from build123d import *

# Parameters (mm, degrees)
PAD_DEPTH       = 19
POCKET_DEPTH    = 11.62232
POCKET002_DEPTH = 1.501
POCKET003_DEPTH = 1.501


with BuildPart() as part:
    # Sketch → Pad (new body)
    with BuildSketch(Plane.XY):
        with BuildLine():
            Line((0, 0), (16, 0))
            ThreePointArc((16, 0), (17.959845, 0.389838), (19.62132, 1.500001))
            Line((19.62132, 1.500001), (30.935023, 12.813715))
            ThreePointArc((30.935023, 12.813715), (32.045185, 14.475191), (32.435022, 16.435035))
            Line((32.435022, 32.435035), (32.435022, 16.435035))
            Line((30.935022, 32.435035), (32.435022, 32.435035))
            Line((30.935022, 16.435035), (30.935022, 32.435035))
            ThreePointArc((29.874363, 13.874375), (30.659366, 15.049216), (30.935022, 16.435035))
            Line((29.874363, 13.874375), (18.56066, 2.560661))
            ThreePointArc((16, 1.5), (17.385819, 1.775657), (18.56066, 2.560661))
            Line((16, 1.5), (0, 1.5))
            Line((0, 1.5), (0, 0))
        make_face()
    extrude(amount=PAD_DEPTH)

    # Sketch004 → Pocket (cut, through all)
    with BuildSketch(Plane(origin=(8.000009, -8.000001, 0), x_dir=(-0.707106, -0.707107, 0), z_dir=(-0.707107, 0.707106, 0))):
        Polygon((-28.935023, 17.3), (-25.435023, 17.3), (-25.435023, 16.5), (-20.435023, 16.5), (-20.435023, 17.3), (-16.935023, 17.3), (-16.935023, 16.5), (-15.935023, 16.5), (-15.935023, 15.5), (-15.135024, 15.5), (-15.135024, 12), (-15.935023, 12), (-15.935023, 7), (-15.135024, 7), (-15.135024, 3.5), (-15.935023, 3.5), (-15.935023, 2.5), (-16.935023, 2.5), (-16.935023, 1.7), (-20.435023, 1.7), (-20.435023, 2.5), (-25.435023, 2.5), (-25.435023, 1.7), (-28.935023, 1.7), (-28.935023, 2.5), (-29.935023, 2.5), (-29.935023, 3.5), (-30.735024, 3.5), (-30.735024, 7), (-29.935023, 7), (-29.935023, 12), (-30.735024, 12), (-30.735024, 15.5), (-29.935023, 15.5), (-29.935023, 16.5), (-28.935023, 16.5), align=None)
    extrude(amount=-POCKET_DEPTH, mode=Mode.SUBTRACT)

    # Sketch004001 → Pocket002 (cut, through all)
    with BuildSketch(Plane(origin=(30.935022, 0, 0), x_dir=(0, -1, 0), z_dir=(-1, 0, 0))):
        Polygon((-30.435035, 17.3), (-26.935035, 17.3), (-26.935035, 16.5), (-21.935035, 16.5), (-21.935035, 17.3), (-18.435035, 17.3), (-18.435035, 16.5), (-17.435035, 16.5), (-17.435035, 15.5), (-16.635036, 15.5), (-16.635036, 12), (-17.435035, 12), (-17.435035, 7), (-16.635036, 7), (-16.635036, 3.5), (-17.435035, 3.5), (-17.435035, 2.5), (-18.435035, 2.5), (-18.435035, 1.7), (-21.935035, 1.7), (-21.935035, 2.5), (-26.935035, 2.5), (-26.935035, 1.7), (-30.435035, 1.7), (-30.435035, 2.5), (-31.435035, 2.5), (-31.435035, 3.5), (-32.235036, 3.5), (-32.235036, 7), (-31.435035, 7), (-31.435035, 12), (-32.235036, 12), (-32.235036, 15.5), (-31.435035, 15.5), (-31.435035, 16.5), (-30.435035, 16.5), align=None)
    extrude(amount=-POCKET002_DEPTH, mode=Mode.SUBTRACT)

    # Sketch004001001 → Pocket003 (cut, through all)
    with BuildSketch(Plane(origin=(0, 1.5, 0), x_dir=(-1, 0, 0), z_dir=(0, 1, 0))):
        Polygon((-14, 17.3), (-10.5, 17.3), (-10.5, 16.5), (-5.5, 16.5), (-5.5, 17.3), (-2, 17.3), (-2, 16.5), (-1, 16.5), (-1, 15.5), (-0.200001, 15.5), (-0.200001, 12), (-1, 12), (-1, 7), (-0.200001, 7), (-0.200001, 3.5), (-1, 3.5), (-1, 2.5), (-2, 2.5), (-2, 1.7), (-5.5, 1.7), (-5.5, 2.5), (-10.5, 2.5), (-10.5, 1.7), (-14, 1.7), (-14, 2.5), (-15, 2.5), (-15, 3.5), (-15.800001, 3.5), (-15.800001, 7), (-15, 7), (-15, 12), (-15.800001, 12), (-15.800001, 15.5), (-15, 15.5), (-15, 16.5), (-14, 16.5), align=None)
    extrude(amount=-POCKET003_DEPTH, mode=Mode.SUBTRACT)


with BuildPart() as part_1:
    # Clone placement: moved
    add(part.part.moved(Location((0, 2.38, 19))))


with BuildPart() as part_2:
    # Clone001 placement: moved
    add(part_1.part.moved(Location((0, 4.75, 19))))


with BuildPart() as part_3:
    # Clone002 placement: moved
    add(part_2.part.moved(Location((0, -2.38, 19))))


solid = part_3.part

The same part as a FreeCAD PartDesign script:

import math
import FreeCAD as App
import Part
import Sketcher
from FreeCAD import Vector

doc = App.newDocument("Part")
body = doc.addObject("PartDesign::Body", "Body")

# Sketch on XY plane
sketch1 = body.newObject("Sketcher::SketchObject", "Sketch")
sketch1.AttachmentSupport = (doc.getObject("XY_Plane"), [""])
sketch1.MapMode = "FlatFace"
sketch1.addGeometry([
    Part.LineSegment(Vector(0, 0, 0), Vector(16, 0, 0)),  # 0
    Part.ArcOfCircle(Part.Circle(Vector(15.999999, 5.121319, 0), Vector(0, 0, 1), 5.121319), math.radians(-89.999989), math.radians(-44.99998)),  # 1
    Part.LineSegment(Vector(19.62132, 1.500001, 0), Vector(30.935023, 12.813715, 0)),  # 2
    Part.ArcOfCircle(Part.Circle(Vector(27.3137, 16.435035, 0), Vector(0, 0, 1), 5.121322), math.radians(-44.999976), math.radians(-0.000001)),  # 3
    Part.LineSegment(Vector(32.435022, 16.435035, 0), Vector(32.435022, 32.435035, 0)),  # 4
    Part.LineSegment(Vector(32.435022, 32.435035, 0), Vector(30.935022, 32.435035, 0)),  # 5
    Part.LineSegment(Vector(30.935022, 32.435035, 0), Vector(30.935022, 16.435035, 0)),  # 6
    Part.ArcOfCircle(Part.Circle(Vector(27.313702, 16.435034, 0), Vector(0, 0, 1), 3.62132), math.radians(-44.999978), math.radians(0.00002)),  # 7
    Part.LineSegment(Vector(29.874363, 13.874375, 0), Vector(18.56066, 2.560661, 0)),  # 8
    Part.ArcOfCircle(Part.Circle(Vector(15.999998, 5.121322, 0), Vector(0, 0, 1), 3.621322), math.radians(-89.999976), math.radians(-44.99999)),  # 9
    Part.LineSegment(Vector(16, 1.5, 0), Vector(0, 1.5, 0)),  # 10
    Part.LineSegment(Vector(0, 1.5, 0), Vector(0, 0, 0)),  # 11
], False)
sketch1.addConstraint([
    Sketcher.Constraint("Tangent", 0, 2, 1, 1),
    Sketcher.Constraint("Tangent", 1, 2, 2, 1),
    Sketcher.Constraint("Tangent", 2, 2, 3, 1),
    Sketcher.Constraint("Tangent", 3, 2, 4, 1),
    Sketcher.Constraint("Coincident", 4, 2, 5, 1),
    Sketcher.Constraint("Coincident", 5, 2, 6, 1),
    Sketcher.Constraint("Tangent", 6, 2, 7, 2),
    Sketcher.Constraint("Tangent", 7, 1, 8, 1),
    Sketcher.Constraint("Tangent", 8, 2, 9, 2),
    Sketcher.Constraint("Tangent", 9, 1, 10, 1),
    Sketcher.Constraint("Coincident", 10, 2, 11, 1),
    Sketcher.Constraint("Coincident", 11, 2, 0, 1),
    Sketcher.Constraint("Horizontal", 0),
    Sketcher.Constraint("Vertical", 4),
    Sketcher.Constraint("Horizontal", 5),
    Sketcher.Constraint("Vertical", 6),
    Sketcher.Constraint("Horizontal", 10),
    Sketcher.Constraint("Vertical", 11),
    Sketcher.Constraint("Coincident", 11, 2, -1, 1),
    Sketcher.Constraint("Coincident", 7, 3, 3, 3),
    Sketcher.Constraint("Coincident", 9, 3, 1, 3),
    Sketcher.Constraint("Equal", 7, 9),
    Sketcher.Constraint("Parallel", 2, 8),
    Sketcher.Constraint("Horizontal", 1, 2, 9, 1),
    Sketcher.Constraint("Vertical", 2, 2, 5, 2),
    Sketcher.Constraint("Equal", 10, 4),
    Sketcher.Constraint("DistanceX", 0, 1, 0, 2, 16.0),
    Sketcher.Constraint("Distance", 2, 16.0),
    Sketcher.Constraint("DistanceX", 5, 2, 5, 1, 1.5),
])
pad1 = body.newObject("PartDesign::Pad", "Pad")
pad1.Profile = sketch1
pad1.Length = 19

# Sketch on an angled plane
sketch2 = body.newObject("Sketcher::SketchObject", "Sketch001")
sketch2.Placement = App.Placement(Vector(8.000009, -8.000001, 0), App.Rotation(Vector(-0.707106281, -0.707107281, 0), Vector(0, 0, 0.999999999), Vector(-0.707107281, 0.707106281, 0), "ZXY"))
sketch2.addGeometry([
    Part.LineSegment(Vector(-25.435023, 17.3, 0), Vector(-28.935023, 17.3, 0)),  # 0
    Part.LineSegment(Vector(-28.935023, 17.3, 0), Vector(-28.935023, 16.5, 0)),  # 1
    Part.LineSegment(Vector(-28.935023, 16.5, 0), Vector(-29.935023, 16.5, 0)),  # 2
    Part.LineSegment(Vector(-29.935023, 16.5, 0), Vector(-29.935023, 15.5, 0)),  # 3
    Part.LineSegment(Vector(-29.935023, 15.5, 0), Vector(-30.735024, 15.5, 0)),  # 4
    Part.LineSegment(Vector(-30.735024, 15.5, 0), Vector(-30.735024, 12, 0)),  # 5
    Part.LineSegment(Vector(-30.735024, 12, 0), Vector(-29.935023, 12, 0)),  # 6
    Part.LineSegment(Vector(-29.935023, 12, 0), Vector(-29.935023, 7, 0)),  # 7
    Part.LineSegment(Vector(-29.935023, 7, 0), Vector(-30.735024, 7, 0)),  # 8
    Part.LineSegment(Vector(-30.735024, 7, 0), Vector(-30.735024, 3.5, 0)),  # 9
    Part.LineSegment(Vector(-30.735024, 3.5, 0), Vector(-29.935023, 3.5, 0)),  # 10
    Part.LineSegment(Vector(-29.935023, 3.5, 0), Vector(-29.935023, 2.5, 0)),  # 11
    Part.LineSegment(Vector(-29.935023, 2.5, 0), Vector(-28.935023, 2.5, 0)),  # 12
    Part.LineSegment(Vector(-28.935023, 2.5, 0), Vector(-28.935023, 1.7, 0)),  # 13
    Part.LineSegment(Vector(-28.935023, 1.7, 0), Vector(-25.435023, 1.7, 0)),  # 14
    Part.LineSegment(Vector(-25.435023, 1.7, 0), Vector(-25.435023, 2.5, 0)),  # 15
    Part.LineSegment(Vector(-25.435023, 2.5, 0), Vector(-20.435023, 2.5, 0)),  # 16
    Part.LineSegment(Vector(-20.435023, 2.5, 0), Vector(-20.435023, 1.7, 0)),  # 17
    Part.LineSegment(Vector(-20.435023, 1.7, 0), Vector(-16.935023, 1.7, 0)),  # 18
    Part.LineSegment(Vector(-16.935023, 1.7, 0), Vector(-16.935023, 2.5, 0)),  # 19
    Part.LineSegment(Vector(-16.935023, 2.5, 0), Vector(-15.935023, 2.5, 0)),  # 20
    Part.LineSegment(Vector(-15.935023, 2.5, 0), Vector(-15.935023, 3.5, 0)),  # 21
    Part.LineSegment(Vector(-15.935023, 3.5, 0), Vector(-15.135024, 3.5, 0)),  # 22
    Part.LineSegment(Vector(-15.135024, 3.5, 0), Vector(-15.135024, 7, 0)),  # 23
    Part.LineSegment(Vector(-15.135024, 7, 0), Vector(-15.935023, 7, 0)),  # 24
    Part.LineSegment(Vector(-15.935023, 7, 0), Vector(-15.935023, 12, 0)),  # 25
    Part.LineSegment(Vector(-15.935023, 12, 0), Vector(-15.135024, 12, 0)),  # 26
    Part.LineSegment(Vector(-15.135024, 12, 0), Vector(-15.135024, 15.5, 0)),  # 27
    Part.LineSegment(Vector(-15.135024, 15.5, 0), Vector(-15.935023, 15.5, 0)),  # 28
    Part.LineSegment(Vector(-15.935023, 15.5, 0), Vector(-15.935023, 16.5, 0)),  # 29
    Part.LineSegment(Vector(-15.935023, 16.5, 0), Vector(-16.935023, 16.5, 0)),  # 30
    Part.LineSegment(Vector(-16.935023, 16.5, 0), Vector(-16.935023, 17.3, 0)),  # 31
    Part.LineSegment(Vector(-16.935023, 17.3, 0), Vector(-20.435023, 17.3, 0)),  # 32
    Part.LineSegment(Vector(-20.435023, 17.3, 0), Vector(-20.435023, 16.5, 0)),  # 33
    Part.LineSegment(Vector(-20.435023, 16.5, 0), Vector(-25.435023, 16.5, 0)),  # 34
    Part.LineSegment(Vector(-25.435023, 16.5, 0), Vector(-25.435023, 17.3, 0)),  # 35
], False)
sketch2.addConstraint([
    Sketcher.Constraint("Coincident", 0, 2, 1, 1),
    Sketcher.Constraint("Coincident", 1, 2, 2, 1),
    Sketcher.Constraint("Coincident", 2, 2, 3, 1),
    Sketcher.Constraint("Coincident", 3, 2, 4, 1),
    Sketcher.Constraint("Coincident", 4, 2, 5, 1),
    Sketcher.Constraint("Coincident", 5, 2, 6, 1),
    Sketcher.Constraint("Coincident", 6, 2, 7, 1),
    Sketcher.Constraint("Coincident", 7, 2, 8, 1),
    Sketcher.Constraint("Coincident", 8, 2, 9, 1),
    Sketcher.Constraint("Coincident", 9, 2, 10, 1),
    Sketcher.Constraint("Coincident", 10, 2, 11, 1),
    Sketcher.Constraint("Coincident", 11, 2, 12, 1),
    Sketcher.Constraint("Coincident", 12, 2, 13, 1),
    Sketcher.Constraint("Coincident", 13, 2, 14, 1),
    Sketcher.Constraint("Coincident", 14, 2, 15, 1),
    Sketcher.Constraint("Coincident", 15, 2, 16, 1),
    Sketcher.Constraint("Coincident", 16, 2, 17, 1),
    Sketcher.Constraint("Coincident", 17, 2, 18, 1),
    Sketcher.Constraint("Coincident", 18, 2, 19, 1),
    Sketcher.Constraint("Coincident", 19, 2, 20, 1),
    Sketcher.Constraint("Coincident", 20, 2, 21, 1),
    Sketcher.Constraint("Coincident", 21, 2, 22, 1),
    Sketcher.Constraint("Coincident", 22, 2, 23, 1),
    Sketcher.Constraint("Coincident", 23, 2, 24, 1),
    Sketcher.Constraint("Coincident", 24, 2, 25, 1),
    Sketcher.Constraint("Coincident", 25, 2, 26, 1),
    Sketcher.Constraint("Coincident", 26, 2, 27, 1),
    Sketcher.Constraint("Coincident", 27, 2, 28, 1),
    Sketcher.Constraint("Coincident", 28, 2, 29, 1),
    Sketcher.Constraint("Coincident", 29, 2, 30, 1),
    Sketcher.Constraint("Coincident", 30, 2, 31, 1),
    Sketcher.Constraint("Coincident", 31, 2, 32, 1),
    Sketcher.Constraint("Coincident", 32, 2, 33, 1),
    Sketcher.Constraint("Coincident", 33, 2, 34, 1),
    Sketcher.Constraint("Coincident", 34, 2, 35, 1),
    Sketcher.Constraint("Coincident", 35, 2, 0, 1),
    Sketcher.Constraint("Horizontal", 0),
    Sketcher.Constraint("Vertical", 1),
    Sketcher.Constraint("Horizontal", 2),
    Sketcher.Constraint("Vertical", 3),
    Sketcher.Constraint("Horizontal", 4),
    Sketcher.Constraint("Vertical", 5),
    Sketcher.Constraint("Horizontal", 6),
    Sketcher.Constraint("Vertical", 7),
    Sketcher.Constraint("Horizontal", 8),
    Sketcher.Constraint("Vertical", 9),
    Sketcher.Constraint("Horizontal", 10),
    Sketcher.Constraint("Vertical", 11),
    Sketcher.Constraint("Horizontal", 12),
    Sketcher.Constraint("Vertical", 13),
    Sketcher.Constraint("Horizontal", 14),
    Sketcher.Constraint("Vertical", 15),
    Sketcher.Constraint("Horizontal", 16),
    Sketcher.Constraint("Vertical", 17),
    Sketcher.Constraint("Horizontal", 18),
    Sketcher.Constraint("Vertical", 19),
    Sketcher.Constraint("Horizontal", 20),
    Sketcher.Constraint("Vertical", 21),
    Sketcher.Constraint("Horizontal", 22),
    Sketcher.Constraint("Vertical", 23),
    Sketcher.Constraint("Horizontal", 24),
    Sketcher.Constraint("Vertical", 25),
    Sketcher.Constraint("Horizontal", 26),
    Sketcher.Constraint("Vertical", 27),
    Sketcher.Constraint("Horizontal", 28),
    Sketcher.Constraint("Vertical", 29),
    Sketcher.Constraint("Horizontal", 30),
    Sketcher.Constraint("Vertical", 31),
    Sketcher.Constraint("Horizontal", 32),
    Sketcher.Constraint("Vertical", 33),
    Sketcher.Constraint("Horizontal", 34),
    Sketcher.Constraint("Vertical", 35),
    Sketcher.Constraint("Horizontal", 12, 2, 15, 2),
    Sketcher.Constraint("Horizontal", 14, 2, 17, 2),
    Sketcher.Constraint("Horizontal", 16, 2, 19, 2),
    Sketcher.Constraint("Horizontal", 10, 2, 21, 2),
    Sketcher.Constraint("Horizontal", 8, 2, 23, 2),
    Sketcher.Constraint("Horizontal", 6, 2, 25, 2),
    Sketcher.Constraint("Horizontal", 4, 2, 27, 2),
    Sketcher.Constraint("Horizontal", 2, 2, 29, 2),
    Sketcher.Constraint("Horizontal", 0, 2, 31, 2),
    Sketcher.Constraint("Horizontal", 30, 2, 33, 2),
    Sketcher.Constraint("Vertical", 3, 2, 6, 2),
    Sketcher.Constraint("Vertical", 5, 2, 8, 2),
    Sketcher.Constraint("Vertical", 7, 2, 10, 2),
    Sketcher.Constraint("Vertical", 1, 2, 12, 2),
    Sketcher.Constraint("Vertical", 21, 2, 24, 2),
    Sketcher.Constraint("Vertical", 23, 2, 26, 2),
    Sketcher.Constraint("Vertical", 25, 2, 28, 2),
    Sketcher.Constraint("Vertical", 19, 2, 30, 2),
    Sketcher.Constraint("Vertical", 17, 2, 32, 2),
    Sketcher.Constraint("Vertical", 15, 2, 34, 2),
    Sketcher.Constraint("Equal", 14, 18),
    Sketcher.Constraint("Equal", 12, 20),
    Sketcher.Constraint("Equal", 28, 1),
    Sketcher.Constraint("Equal", 30, 3),
    Sketcher.Constraint("Equal", 32, 5),
    Sketcher.Constraint("Equal", 34, 7),
    Sketcher.Constraint("Equal", 5, 9),
    Sketcher.Constraint("Equal", 3, 11),
    Sketcher.Constraint("Equal", 1, 13),
    Sketcher.Constraint("Equal", 10, 15),
    Sketcher.Constraint("DistanceX", 2, 2, 2, 1, 1.0),
    Sketcher.Constraint("DistanceX", 16, 1, 16, 2, 5.0),
    Sketcher.Constraint("DistanceX", 0, 2, 0, 1, 3.5),
    Sketcher.Constraint("DistanceX", 4, 2, 4, 1, 0.800001),
    Sketcher.Constraint("DistanceY", -1, 1, 5, 2, 12.0),
    Sketcher.Constraint("DistanceX", 0, 2, -1, 1, 28.935023),
])
pocket1 = body.newObject("PartDesign::Pocket", "Pocket")
pocket1.Profile = sketch2
pocket1.Type = "ThroughAll"

# Sketch on YZ plane
sketch3 = body.newObject("Sketcher::SketchObject", "Sketch002")
sketch3.AttachmentSupport = (doc.getObject("YZ_Plane"), [""])
sketch3.MapMode = "FlatFace"
sketch3.AttachmentOffset = App.Placement(Vector(0, 0, 30.935022), App.Rotation())
sketch3.addGeometry([
    Part.LineSegment(Vector(26.935035, 17.3, 0), Vector(30.435035, 17.3, 0)),  # 0
    Part.LineSegment(Vector(30.435035, 17.3, 0), Vector(30.435035, 16.5, 0)),  # 1
    Part.LineSegment(Vector(30.435035, 16.5, 0), Vector(31.435035, 16.5, 0)),  # 2
    Part.LineSegment(Vector(31.435035, 16.5, 0), Vector(31.435035, 15.5, 0)),  # 3
    Part.LineSegment(Vector(31.435035, 15.5, 0), Vector(32.235036, 15.5, 0)),  # 4
    Part.LineSegment(Vector(32.235036, 15.5, 0), Vector(32.235036, 12, 0)),  # 5
    Part.LineSegment(Vector(32.235036, 12, 0), Vector(31.435035, 12, 0)),  # 6
    Part.LineSegment(Vector(31.435035, 12, 0), Vector(31.435035, 7, 0)),  # 7
    Part.LineSegment(Vector(31.435035, 7, 0), Vector(32.235036, 7, 0)),  # 8
    Part.LineSegment(Vector(32.235036, 7, 0), Vector(32.235036, 3.5, 0)),  # 9
    Part.LineSegment(Vector(32.235036, 3.5, 0), Vector(31.435035, 3.5, 0)),  # 10
    Part.LineSegment(Vector(31.435035, 3.5, 0), Vector(31.435035, 2.5, 0)),  # 11
    Part.LineSegment(Vector(31.435035, 2.5, 0), Vector(30.435035, 2.5, 0)),  # 12
    Part.LineSegment(Vector(30.435035, 2.5, 0), Vector(30.435035, 1.7, 0)),  # 13
    Part.LineSegment(Vector(30.435035, 1.7, 0), Vector(26.935035, 1.7, 0)),  # 14
    Part.LineSegment(Vector(26.935035, 1.7, 0), Vector(26.935035, 2.5, 0)),  # 15
    Part.LineSegment(Vector(26.935035, 2.5, 0), Vector(21.935035, 2.5, 0)),  # 16
    Part.LineSegment(Vector(21.935035, 2.5, 0), Vector(21.935035, 1.7, 0)),  # 17
    Part.LineSegment(Vector(21.935035, 1.7, 0), Vector(18.435035, 1.7, 0)),  # 18
    Part.LineSegment(Vector(18.435035, 1.7, 0), Vector(18.435035, 2.5, 0)),  # 19
    Part.LineSegment(Vector(18.435035, 2.5, 0), Vector(17.435035, 2.5, 0)),  # 20
    Part.LineSegment(Vector(17.435035, 2.5, 0), Vector(17.435035, 3.5, 0)),  # 21
    Part.LineSegment(Vector(17.435035, 3.5, 0), Vector(16.635036, 3.5, 0)),  # 22
    Part.LineSegment(Vector(16.635036, 3.5, 0), Vector(16.635036, 7, 0)),  # 23
    Part.LineSegment(Vector(16.635036, 7, 0), Vector(17.435035, 7, 0)),  # 24
    Part.LineSegment(Vector(17.435035, 7, 0), Vector(17.435035, 12, 0)),  # 25
    Part.LineSegment(Vector(17.435035, 12, 0), Vector(16.635036, 12, 0)),  # 26
    Part.LineSegment(Vector(16.635036, 12, 0), Vector(16.635036, 15.5, 0)),  # 27
    Part.LineSegment(Vector(16.635036, 15.5, 0), Vector(17.435035, 15.5, 0)),  # 28
    Part.LineSegment(Vector(17.435035, 15.5, 0), Vector(17.435035, 16.5, 0)),  # 29
    Part.LineSegment(Vector(17.435035, 16.5, 0), Vector(18.435035, 16.5, 0)),  # 30
    Part.LineSegment(Vector(18.435035, 16.5, 0), Vector(18.435035, 17.3, 0)),  # 31
    Part.LineSegment(Vector(18.435035, 17.3, 0), Vector(21.935035, 17.3, 0)),  # 32
    Part.LineSegment(Vector(21.935035, 17.3, 0), Vector(21.935035, 16.5, 0)),  # 33
    Part.LineSegment(Vector(21.935035, 16.5, 0), Vector(26.935035, 16.5, 0)),  # 34
    Part.LineSegment(Vector(26.935035, 16.5, 0), Vector(26.935035, 17.3, 0)),  # 35
], False)
sketch3.addConstraint([
    Sketcher.Constraint("Coincident", 0, 2, 1, 1),
    Sketcher.Constraint("Coincident", 1, 2, 2, 1),
    Sketcher.Constraint("Coincident", 2, 2, 3, 1),
    Sketcher.Constraint("Coincident", 3, 2, 4, 1),
    Sketcher.Constraint("Coincident", 4, 2, 5, 1),
    Sketcher.Constraint("Coincident", 5, 2, 6, 1),
    Sketcher.Constraint("Coincident", 6, 2, 7, 1),
    Sketcher.Constraint("Coincident", 7, 2, 8, 1),
    Sketcher.Constraint("Coincident", 8, 2, 9, 1),
    Sketcher.Constraint("Coincident", 9, 2, 10, 1),
    Sketcher.Constraint("Coincident", 10, 2, 11, 1),
    Sketcher.Constraint("Coincident", 11, 2, 12, 1),
    Sketcher.Constraint("Coincident", 12, 2, 13, 1),
    Sketcher.Constraint("Coincident", 13, 2, 14, 1),
    Sketcher.Constraint("Coincident", 14, 2, 15, 1),
    Sketcher.Constraint("Coincident", 15, 2, 16, 1),
    Sketcher.Constraint("Coincident", 16, 2, 17, 1),
    Sketcher.Constraint("Coincident", 17, 2, 18, 1),
    Sketcher.Constraint("Coincident", 18, 2, 19, 1),
    Sketcher.Constraint("Coincident", 19, 2, 20, 1),
    Sketcher.Constraint("Coincident", 20, 2, 21, 1),
    Sketcher.Constraint("Coincident", 21, 2, 22, 1),
    Sketcher.Constraint("Coincident", 22, 2, 23, 1),
    Sketcher.Constraint("Coincident", 23, 2, 24, 1),
    Sketcher.Constraint("Coincident", 24, 2, 25, 1),
    Sketcher.Constraint("Coincident", 25, 2, 26, 1),
    Sketcher.Constraint("Coincident", 26, 2, 27, 1),
    Sketcher.Constraint("Coincident", 27, 2, 28, 1),
    Sketcher.Constraint("Coincident", 28, 2, 29, 1),
    Sketcher.Constraint("Coincident", 29, 2, 30, 1),
    Sketcher.Constraint("Coincident", 30, 2, 31, 1),
    Sketcher.Constraint("Coincident", 31, 2, 32, 1),
    Sketcher.Constraint("Coincident", 32, 2, 33, 1),
    Sketcher.Constraint("Coincident", 33, 2, 34, 1),
    Sketcher.Constraint("Coincident", 34, 2, 35, 1),
    Sketcher.Constraint("Coincident", 35, 2, 0, 1),
    Sketcher.Constraint("Horizontal", 0),
    Sketcher.Constraint("Vertical", 1),
    Sketcher.Constraint("Horizontal", 2),
    Sketcher.Constraint("Vertical", 3),
    Sketcher.Constraint("Horizontal", 4),
    Sketcher.Constraint("Vertical", 5),
    Sketcher.Constraint("Horizontal", 6),
    Sketcher.Constraint("Vertical", 7),
    Sketcher.Constraint("Horizontal", 8),
    Sketcher.Constraint("Vertical", 9),
    Sketcher.Constraint("Horizontal", 10),
    Sketcher.Constraint("Vertical", 11),
    Sketcher.Constraint("Horizontal", 12),
    Sketcher.Constraint("Vertical", 13),
    Sketcher.Constraint("Horizontal", 14),
    Sketcher.Constraint("Vertical", 15),
    Sketcher.Constraint("Horizontal", 16),
    Sketcher.Constraint("Vertical", 17),
    Sketcher.Constraint("Horizontal", 18),
    Sketcher.Constraint("Vertical", 19),
    Sketcher.Constraint("Horizontal", 20),
    Sketcher.Constraint("Vertical", 21),
    Sketcher.Constraint("Horizontal", 22),
    Sketcher.Constraint("Vertical", 23),
    Sketcher.Constraint("Horizontal", 24),
    Sketcher.Constraint("Vertical", 25),
    Sketcher.Constraint("Horizontal", 26),
    Sketcher.Constraint("Vertical", 27),
    Sketcher.Constraint("Horizontal", 28),
    Sketcher.Constraint("Vertical", 29),
    Sketcher.Constraint("Horizontal", 30),
    Sketcher.Constraint("Vertical", 31),
    Sketcher.Constraint("Horizontal", 32),
    Sketcher.Constraint("Vertical", 33),
    Sketcher.Constraint("Horizontal", 34),
    Sketcher.Constraint("Vertical", 35),
    Sketcher.Constraint("Horizontal", 12, 2, 15, 2),
    Sketcher.Constraint("Horizontal", 14, 2, 17, 2),
    Sketcher.Constraint("Horizontal", 16, 2, 19, 2),
    Sketcher.Constraint("Horizontal", 10, 2, 21, 2),
    Sketcher.Constraint("Horizontal", 8, 2, 23, 2),
    Sketcher.Constraint("Horizontal", 6, 2, 25, 2),
    Sketcher.Constraint("Horizontal", 4, 2, 27, 2),
    Sketcher.Constraint("Horizontal", 2, 2, 29, 2),
    Sketcher.Constraint("Horizontal", 0, 2, 31, 2),
    Sketcher.Constraint("Horizontal", 30, 2, 33, 2),
    Sketcher.Constraint("Vertical", 3, 2, 6, 2),
    Sketcher.Constraint("Vertical", 5, 2, 8, 2),
    Sketcher.Constraint("Vertical", 7, 2, 10, 2),
    Sketcher.Constraint("Vertical", 1, 2, 12, 2),
    Sketcher.Constraint("Vertical", 21, 2, 24, 2),
    Sketcher.Constraint("Vertical", 23, 2, 26, 2),
    Sketcher.Constraint("Vertical", 25, 2, 28, 2),
    Sketcher.Constraint("Vertical", 19, 2, 30, 2),
    Sketcher.Constraint("Vertical", 17, 2, 32, 2),
    Sketcher.Constraint("Vertical", 15, 2, 34, 2),
    Sketcher.Constraint("Equal", 14, 18),
    Sketcher.Constraint("Equal", 12, 20),
    Sketcher.Constraint("Equal", 28, 1),
    Sketcher.Constraint("Equal", 30, 3),
    Sketcher.Constraint("Equal", 32, 5),
    Sketcher.Constraint("Equal", 34, 7),
    Sketcher.Constraint("Equal", 5, 9),
    Sketcher.Constraint("Equal", 3, 11),
    Sketcher.Constraint("Equal", 1, 13),
    Sketcher.Constraint("Equal", 10, 15),
    Sketcher.Constraint("DistanceX", 2, 1, 2, 2, 1.0),
    Sketcher.Constraint("DistanceX", 16, 2, 16, 1, 5.0),
    Sketcher.Constraint("DistanceX", 0, 1, 0, 2, 3.5),
    Sketcher.Constraint("DistanceX", 4, 1, 4, 2, 0.800001),
    Sketcher.Constraint("DistanceY", -1, 1, 5, 2, 12.0),
    Sketcher.Constraint("DistanceX", -1, 1, 0, 2, 30.435035),
])
pocket2 = body.newObject("PartDesign::Pocket", "Pocket001")
pocket2.Profile = sketch3
pocket2.Type = "ThroughAll"
pocket2.Reversed = True

# Sketch on XZ plane
sketch4 = body.newObject("Sketcher::SketchObject", "Sketch003")
sketch4.AttachmentSupport = (doc.getObject("XZ_Plane"), [""])
sketch4.MapMode = "FlatFace"
sketch4.AttachmentOffset = App.Placement(Vector(0, 0, -1.5), App.Rotation())
sketch4.addGeometry([
    Part.LineSegment(Vector(10.5, 17.3, 0), Vector(14, 17.3, 0)),  # 0
    Part.LineSegment(Vector(14, 17.3, 0), Vector(14, 16.5, 0)),  # 1
    Part.LineSegment(Vector(14, 16.5, 0), Vector(15, 16.5, 0)),  # 2
    Part.LineSegment(Vector(15, 16.5, 0), Vector(15, 15.5, 0)),  # 3
    Part.LineSegment(Vector(15, 15.5, 0), Vector(15.800001, 15.5, 0)),  # 4
    Part.LineSegment(Vector(15.800001, 15.5, 0), Vector(15.800001, 12, 0)),  # 5
    Part.LineSegment(Vector(15.800001, 12, 0), Vector(15, 12, 0)),  # 6
    Part.LineSegment(Vector(15, 12, 0), Vector(15, 7, 0)),  # 7
    Part.LineSegment(Vector(15, 7, 0), Vector(15.800001, 7, 0)),  # 8
    Part.LineSegment(Vector(15.800001, 7, 0), Vector(15.800001, 3.5, 0)),  # 9
    Part.LineSegment(Vector(15.800001, 3.5, 0), Vector(15, 3.5, 0)),  # 10
    Part.LineSegment(Vector(15, 3.5, 0), Vector(15, 2.5, 0)),  # 11
    Part.LineSegment(Vector(15, 2.5, 0), Vector(14, 2.5, 0)),  # 12
    Part.LineSegment(Vector(14, 2.5, 0), Vector(14, 1.7, 0)),  # 13
    Part.LineSegment(Vector(14, 1.7, 0), Vector(10.5, 1.7, 0)),  # 14
    Part.LineSegment(Vector(10.5, 1.7, 0), Vector(10.5, 2.5, 0)),  # 15
    Part.LineSegment(Vector(10.5, 2.5, 0), Vector(5.5, 2.5, 0)),  # 16
    Part.LineSegment(Vector(5.5, 2.5, 0), Vector(5.5, 1.7, 0)),  # 17
    Part.LineSegment(Vector(5.5, 1.7, 0), Vector(2, 1.7, 0)),  # 18
    Part.LineSegment(Vector(2, 1.7, 0), Vector(2, 2.5, 0)),  # 19
    Part.LineSegment(Vector(2, 2.5, 0), Vector(1, 2.5, 0)),  # 20
    Part.LineSegment(Vector(1, 2.5, 0), Vector(1, 3.5, 0)),  # 21
    Part.LineSegment(Vector(1, 3.5, 0), Vector(0.200001, 3.5, 0)),  # 22
    Part.LineSegment(Vector(0.200001, 3.5, 0), Vector(0.200001, 7, 0)),  # 23
    Part.LineSegment(Vector(0.200001, 7, 0), Vector(1, 7, 0)),  # 24
    Part.LineSegment(Vector(1, 7, 0), Vector(1, 12, 0)),  # 25
    Part.LineSegment(Vector(1, 12, 0), Vector(0.200001, 12, 0)),  # 26
    Part.LineSegment(Vector(0.200001, 12, 0), Vector(0.200001, 15.5, 0)),  # 27
    Part.LineSegment(Vector(0.200001, 15.5, 0), Vector(1, 15.5, 0)),  # 28
    Part.LineSegment(Vector(1, 15.5, 0), Vector(1, 16.5, 0)),  # 29
    Part.LineSegment(Vector(1, 16.5, 0), Vector(2, 16.5, 0)),  # 30
    Part.LineSegment(Vector(2, 16.5, 0), Vector(2, 17.3, 0)),  # 31
    Part.LineSegment(Vector(2, 17.3, 0), Vector(5.5, 17.3, 0)),  # 32
    Part.LineSegment(Vector(5.5, 17.3, 0), Vector(5.5, 16.5, 0)),  # 33
    Part.LineSegment(Vector(5.5, 16.5, 0), Vector(10.5, 16.5, 0)),  # 34
    Part.LineSegment(Vector(10.5, 16.5, 0), Vector(10.5, 17.3, 0)),  # 35
], False)
sketch4.addConstraint([
    Sketcher.Constraint("Coincident", 0, 2, 1, 1),
    Sketcher.Constraint("Coincident", 1, 2, 2, 1),
    Sketcher.Constraint("Coincident", 2, 2, 3, 1),
    Sketcher.Constraint("Coincident", 3, 2, 4, 1),
    Sketcher.Constraint("Coincident", 4, 2, 5, 1),
    Sketcher.Constraint("Coincident", 5, 2, 6, 1),
    Sketcher.Constraint("Coincident", 6, 2, 7, 1),
    Sketcher.Constraint("Coincident", 7, 2, 8, 1),
    Sketcher.Constraint("Coincident", 8, 2, 9, 1),
    Sketcher.Constraint("Coincident", 9, 2, 10, 1),
    Sketcher.Constraint("Coincident", 10, 2, 11, 1),
    Sketcher.Constraint("Coincident", 11, 2, 12, 1),
    Sketcher.Constraint("Coincident", 12, 2, 13, 1),
    Sketcher.Constraint("Coincident", 13, 2, 14, 1),
    Sketcher.Constraint("Coincident", 14, 2, 15, 1),
    Sketcher.Constraint("Coincident", 15, 2, 16, 1),
    Sketcher.Constraint("Coincident", 16, 2, 17, 1),
    Sketcher.Constraint("Coincident", 17, 2, 18, 1),
    Sketcher.Constraint("Coincident", 18, 2, 19, 1),
    Sketcher.Constraint("Coincident", 19, 2, 20, 1),
    Sketcher.Constraint("Coincident", 20, 2, 21, 1),
    Sketcher.Constraint("Coincident", 21, 2, 22, 1),
    Sketcher.Constraint("Coincident", 22, 2, 23, 1),
    Sketcher.Constraint("Coincident", 23, 2, 24, 1),
    Sketcher.Constraint("Coincident", 24, 2, 25, 1),
    Sketcher.Constraint("Coincident", 25, 2, 26, 1),
    Sketcher.Constraint("Coincident", 26, 2, 27, 1),
    Sketcher.Constraint("Coincident", 27, 2, 28, 1),
    Sketcher.Constraint("Coincident", 28, 2, 29, 1),
    Sketcher.Constraint("Coincident", 29, 2, 30, 1),
    Sketcher.Constraint("Coincident", 30, 2, 31, 1),
    Sketcher.Constraint("Coincident", 31, 2, 32, 1),
    Sketcher.Constraint("Coincident", 32, 2, 33, 1),
    Sketcher.Constraint("Coincident", 33, 2, 34, 1),
    Sketcher.Constraint("Coincident", 34, 2, 35, 1),
    Sketcher.Constraint("Coincident", 35, 2, 0, 1),
    Sketcher.Constraint("Horizontal", 0),
    Sketcher.Constraint("Vertical", 1),
    Sketcher.Constraint("Horizontal", 2),
    Sketcher.Constraint("Vertical", 3),
    Sketcher.Constraint("Horizontal", 4),
    Sketcher.Constraint("Vertical", 5),
    Sketcher.Constraint("Horizontal", 6),
    Sketcher.Constraint("Vertical", 7),
    Sketcher.Constraint("Horizontal", 8),
    Sketcher.Constraint("Vertical", 9),
    Sketcher.Constraint("Horizontal", 10),
    Sketcher.Constraint("Vertical", 11),
    Sketcher.Constraint("Horizontal", 12),
    Sketcher.Constraint("Vertical", 13),
    Sketcher.Constraint("Horizontal", 14),
    Sketcher.Constraint("Vertical", 15),
    Sketcher.Constraint("Horizontal", 16),
    Sketcher.Constraint("Vertical", 17),
    Sketcher.Constraint("Horizontal", 18),
    Sketcher.Constraint("Vertical", 19),
    Sketcher.Constraint("Horizontal", 20),
    Sketcher.Constraint("Vertical", 21),
    Sketcher.Constraint("Horizontal", 22),
    Sketcher.Constraint("Vertical", 23),
    Sketcher.Constraint("Horizontal", 24),
    Sketcher.Constraint("Vertical", 25),
    Sketcher.Constraint("Horizontal", 26),
    Sketcher.Constraint("Vertical", 27),
    Sketcher.Constraint("Horizontal", 28),
    Sketcher.Constraint("Vertical", 29),
    Sketcher.Constraint("Horizontal", 30),
    Sketcher.Constraint("Vertical", 31),
    Sketcher.Constraint("Horizontal", 32),
    Sketcher.Constraint("Vertical", 33),
    Sketcher.Constraint("Horizontal", 34),
    Sketcher.Constraint("Vertical", 35),
    Sketcher.Constraint("Horizontal", 12, 2, 15, 2),
    Sketcher.Constraint("Horizontal", 14, 2, 17, 2),
    Sketcher.Constraint("Horizontal", 16, 2, 19, 2),
    Sketcher.Constraint("Horizontal", 10, 2, 21, 2),
    Sketcher.Constraint("Horizontal", 8, 2, 23, 2),
    Sketcher.Constraint("Horizontal", 6, 2, 25, 2),
    Sketcher.Constraint("Horizontal", 4, 2, 27, 2),
    Sketcher.Constraint("Horizontal", 2, 2, 29, 2),
    Sketcher.Constraint("Horizontal", 0, 2, 31, 2),
    Sketcher.Constraint("Horizontal", 30, 2, 33, 2),
    Sketcher.Constraint("Vertical", 3, 2, 6, 2),
    Sketcher.Constraint("Vertical", 5, 2, 8, 2),
    Sketcher.Constraint("Vertical", 7, 2, 10, 2),
    Sketcher.Constraint("Vertical", 1, 2, 12, 2),
    Sketcher.Constraint("Vertical", 21, 2, 24, 2),
    Sketcher.Constraint("Vertical", 23, 2, 26, 2),
    Sketcher.Constraint("Vertical", 25, 2, 28, 2),
    Sketcher.Constraint("Vertical", 19, 2, 30, 2),
    Sketcher.Constraint("Vertical", 17, 2, 32, 2),
    Sketcher.Constraint("Vertical", 15, 2, 34, 2),
    Sketcher.Constraint("Equal", 14, 18),
    Sketcher.Constraint("Equal", 12, 20),
    Sketcher.Constraint("Equal", 10, 22),
    Sketcher.Constraint("Equal", 28, 1),
    Sketcher.Constraint("Equal", 30, 3),
    Sketcher.Constraint("Equal", 32, 5),
    Sketcher.Constraint("Equal", 34, 7),
    Sketcher.Constraint("Equal", 5, 9),
    Sketcher.Constraint("Equal", 3, 11),
    Sketcher.Constraint("Equal", 1, 13),
    Sketcher.Constraint("DistanceX", 2, 1, 2, 2, 1.0),
    Sketcher.Constraint("DistanceX", 16, 2, 16, 1, 5.0),
    Sketcher.Constraint("DistanceX", 0, 1, 0, 2, 3.5),
    Sketcher.Constraint("DistanceX", 4, 1, 4, 2, 0.800001),
    Sketcher.Constraint("DistanceX", -1, 1, 0, 2, 14.0),
    Sketcher.Constraint("DistanceY", -1, 1, 5, 2, 12.0),
])
pocket3 = body.newObject("PartDesign::Pocket", "Pocket002")
pocket3.Profile = sketch4
pocket3.Type = "ThroughAll"
pocket3.Reversed = True
body2 = doc.addObject("PartDesign::Body", "Body001")
doc.recompute()

body.Placement = App.Placement(Vector(0, 2.38, 19), App.Rotation(Vector(0, 0, 1), 0))
boolean = body2.newObject("PartDesign::Boolean", "Boolean")
boolean.Type = "Fuse"
boolean.addObjects([body])
body3 = doc.addObject("PartDesign::Body", "Body002")
doc.recompute()

body2.Placement = App.Placement(Vector(0, 4.75, 19), App.Rotation(Vector(0, 0, 1), 0))
boolean2 = body3.newObject("PartDesign::Boolean", "Boolean001")
boolean2.Type = "Fuse"
boolean2.addObjects([body2])
body4 = doc.addObject("PartDesign::Body", "Body003")
doc.recompute()

body3.Placement = App.Placement(Vector(0, -2.38, 19), App.Rotation(Vector(0, 0, 1), 0))
boolean3 = body4.newObject("PartDesign::Boolean", "Boolean002")
boolean3.Type = "Fuse"
boolean3.addObjects([body3])

doc.recompute()
